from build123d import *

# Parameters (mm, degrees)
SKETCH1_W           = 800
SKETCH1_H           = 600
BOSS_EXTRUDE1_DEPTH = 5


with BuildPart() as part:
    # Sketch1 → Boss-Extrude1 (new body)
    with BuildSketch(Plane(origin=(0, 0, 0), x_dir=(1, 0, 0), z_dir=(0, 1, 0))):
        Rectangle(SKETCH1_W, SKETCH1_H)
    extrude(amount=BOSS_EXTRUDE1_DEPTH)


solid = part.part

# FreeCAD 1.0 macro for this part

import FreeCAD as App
import Part
import Sketcher

doc = App.newDocument("Part")
body = doc.addObject("PartDesign::Body", "Body")

# Sketch on XZ plane
sketch1 = body.newObject("Sketcher::SketchObject", "Sketch")
sketch1.AttachmentSupport = (doc.getObject("XZ_Plane"), [""])
sketch1.MapMode = "FlatFace"
sketch1.addGeometry(Part.LineSegment(App.Vector(-400, -300, 0), App.Vector(-400, 300, 0)), False)
sketch1.addGeometry(Part.LineSegment(App.Vector(-400, 300, 0), App.Vector(400, 300, 0)), False)
sketch1.addGeometry(Part.LineSegment(App.Vector(400, 300, 0), App.Vector(400, -300, 0)), False)
sketch1.addGeometry(Part.LineSegment(App.Vector(400, -300, 0), App.Vector(-400, -300, 0)), False)
sketch1.addConstraint(Sketcher.Constraint("Coincident", 0, 2, 1, 1))
sketch1.addConstraint(Sketcher.Constraint("Coincident", 1, 2, 2, 1))
sketch1.addConstraint(Sketcher.Constraint("Coincident", 2, 2, 3, 1))
sketch1.addConstraint(Sketcher.Constraint("Coincident", 3, 2, 0, 1))
sketch1.addConstraint(Sketcher.Constraint("Vertical", 0))
sketch1.addConstraint(Sketcher.Constraint("Horizontal", 1))
sketch1.addConstraint(Sketcher.Constraint("Vertical", 2))
sketch1.addConstraint(Sketcher.Constraint("Horizontal", 3))
sketch1.addConstraint(Sketcher.Constraint("Symmetric", 0, 2, 2, 2, -1, 1))
sketch1.addConstraint(Sketcher.Constraint("DistanceX", 1, 1, 1, 2, 800.0))
sketch1.addConstraint(Sketcher.Constraint("DistanceY", 0, 1, 0, 2, 600.0))
pad1 = body.newObject("PartDesign::Pad", "Pad")
pad1.Profile = sketch1
pad1.Length = 5
pad1.Reversed = True

doc.recompute()
